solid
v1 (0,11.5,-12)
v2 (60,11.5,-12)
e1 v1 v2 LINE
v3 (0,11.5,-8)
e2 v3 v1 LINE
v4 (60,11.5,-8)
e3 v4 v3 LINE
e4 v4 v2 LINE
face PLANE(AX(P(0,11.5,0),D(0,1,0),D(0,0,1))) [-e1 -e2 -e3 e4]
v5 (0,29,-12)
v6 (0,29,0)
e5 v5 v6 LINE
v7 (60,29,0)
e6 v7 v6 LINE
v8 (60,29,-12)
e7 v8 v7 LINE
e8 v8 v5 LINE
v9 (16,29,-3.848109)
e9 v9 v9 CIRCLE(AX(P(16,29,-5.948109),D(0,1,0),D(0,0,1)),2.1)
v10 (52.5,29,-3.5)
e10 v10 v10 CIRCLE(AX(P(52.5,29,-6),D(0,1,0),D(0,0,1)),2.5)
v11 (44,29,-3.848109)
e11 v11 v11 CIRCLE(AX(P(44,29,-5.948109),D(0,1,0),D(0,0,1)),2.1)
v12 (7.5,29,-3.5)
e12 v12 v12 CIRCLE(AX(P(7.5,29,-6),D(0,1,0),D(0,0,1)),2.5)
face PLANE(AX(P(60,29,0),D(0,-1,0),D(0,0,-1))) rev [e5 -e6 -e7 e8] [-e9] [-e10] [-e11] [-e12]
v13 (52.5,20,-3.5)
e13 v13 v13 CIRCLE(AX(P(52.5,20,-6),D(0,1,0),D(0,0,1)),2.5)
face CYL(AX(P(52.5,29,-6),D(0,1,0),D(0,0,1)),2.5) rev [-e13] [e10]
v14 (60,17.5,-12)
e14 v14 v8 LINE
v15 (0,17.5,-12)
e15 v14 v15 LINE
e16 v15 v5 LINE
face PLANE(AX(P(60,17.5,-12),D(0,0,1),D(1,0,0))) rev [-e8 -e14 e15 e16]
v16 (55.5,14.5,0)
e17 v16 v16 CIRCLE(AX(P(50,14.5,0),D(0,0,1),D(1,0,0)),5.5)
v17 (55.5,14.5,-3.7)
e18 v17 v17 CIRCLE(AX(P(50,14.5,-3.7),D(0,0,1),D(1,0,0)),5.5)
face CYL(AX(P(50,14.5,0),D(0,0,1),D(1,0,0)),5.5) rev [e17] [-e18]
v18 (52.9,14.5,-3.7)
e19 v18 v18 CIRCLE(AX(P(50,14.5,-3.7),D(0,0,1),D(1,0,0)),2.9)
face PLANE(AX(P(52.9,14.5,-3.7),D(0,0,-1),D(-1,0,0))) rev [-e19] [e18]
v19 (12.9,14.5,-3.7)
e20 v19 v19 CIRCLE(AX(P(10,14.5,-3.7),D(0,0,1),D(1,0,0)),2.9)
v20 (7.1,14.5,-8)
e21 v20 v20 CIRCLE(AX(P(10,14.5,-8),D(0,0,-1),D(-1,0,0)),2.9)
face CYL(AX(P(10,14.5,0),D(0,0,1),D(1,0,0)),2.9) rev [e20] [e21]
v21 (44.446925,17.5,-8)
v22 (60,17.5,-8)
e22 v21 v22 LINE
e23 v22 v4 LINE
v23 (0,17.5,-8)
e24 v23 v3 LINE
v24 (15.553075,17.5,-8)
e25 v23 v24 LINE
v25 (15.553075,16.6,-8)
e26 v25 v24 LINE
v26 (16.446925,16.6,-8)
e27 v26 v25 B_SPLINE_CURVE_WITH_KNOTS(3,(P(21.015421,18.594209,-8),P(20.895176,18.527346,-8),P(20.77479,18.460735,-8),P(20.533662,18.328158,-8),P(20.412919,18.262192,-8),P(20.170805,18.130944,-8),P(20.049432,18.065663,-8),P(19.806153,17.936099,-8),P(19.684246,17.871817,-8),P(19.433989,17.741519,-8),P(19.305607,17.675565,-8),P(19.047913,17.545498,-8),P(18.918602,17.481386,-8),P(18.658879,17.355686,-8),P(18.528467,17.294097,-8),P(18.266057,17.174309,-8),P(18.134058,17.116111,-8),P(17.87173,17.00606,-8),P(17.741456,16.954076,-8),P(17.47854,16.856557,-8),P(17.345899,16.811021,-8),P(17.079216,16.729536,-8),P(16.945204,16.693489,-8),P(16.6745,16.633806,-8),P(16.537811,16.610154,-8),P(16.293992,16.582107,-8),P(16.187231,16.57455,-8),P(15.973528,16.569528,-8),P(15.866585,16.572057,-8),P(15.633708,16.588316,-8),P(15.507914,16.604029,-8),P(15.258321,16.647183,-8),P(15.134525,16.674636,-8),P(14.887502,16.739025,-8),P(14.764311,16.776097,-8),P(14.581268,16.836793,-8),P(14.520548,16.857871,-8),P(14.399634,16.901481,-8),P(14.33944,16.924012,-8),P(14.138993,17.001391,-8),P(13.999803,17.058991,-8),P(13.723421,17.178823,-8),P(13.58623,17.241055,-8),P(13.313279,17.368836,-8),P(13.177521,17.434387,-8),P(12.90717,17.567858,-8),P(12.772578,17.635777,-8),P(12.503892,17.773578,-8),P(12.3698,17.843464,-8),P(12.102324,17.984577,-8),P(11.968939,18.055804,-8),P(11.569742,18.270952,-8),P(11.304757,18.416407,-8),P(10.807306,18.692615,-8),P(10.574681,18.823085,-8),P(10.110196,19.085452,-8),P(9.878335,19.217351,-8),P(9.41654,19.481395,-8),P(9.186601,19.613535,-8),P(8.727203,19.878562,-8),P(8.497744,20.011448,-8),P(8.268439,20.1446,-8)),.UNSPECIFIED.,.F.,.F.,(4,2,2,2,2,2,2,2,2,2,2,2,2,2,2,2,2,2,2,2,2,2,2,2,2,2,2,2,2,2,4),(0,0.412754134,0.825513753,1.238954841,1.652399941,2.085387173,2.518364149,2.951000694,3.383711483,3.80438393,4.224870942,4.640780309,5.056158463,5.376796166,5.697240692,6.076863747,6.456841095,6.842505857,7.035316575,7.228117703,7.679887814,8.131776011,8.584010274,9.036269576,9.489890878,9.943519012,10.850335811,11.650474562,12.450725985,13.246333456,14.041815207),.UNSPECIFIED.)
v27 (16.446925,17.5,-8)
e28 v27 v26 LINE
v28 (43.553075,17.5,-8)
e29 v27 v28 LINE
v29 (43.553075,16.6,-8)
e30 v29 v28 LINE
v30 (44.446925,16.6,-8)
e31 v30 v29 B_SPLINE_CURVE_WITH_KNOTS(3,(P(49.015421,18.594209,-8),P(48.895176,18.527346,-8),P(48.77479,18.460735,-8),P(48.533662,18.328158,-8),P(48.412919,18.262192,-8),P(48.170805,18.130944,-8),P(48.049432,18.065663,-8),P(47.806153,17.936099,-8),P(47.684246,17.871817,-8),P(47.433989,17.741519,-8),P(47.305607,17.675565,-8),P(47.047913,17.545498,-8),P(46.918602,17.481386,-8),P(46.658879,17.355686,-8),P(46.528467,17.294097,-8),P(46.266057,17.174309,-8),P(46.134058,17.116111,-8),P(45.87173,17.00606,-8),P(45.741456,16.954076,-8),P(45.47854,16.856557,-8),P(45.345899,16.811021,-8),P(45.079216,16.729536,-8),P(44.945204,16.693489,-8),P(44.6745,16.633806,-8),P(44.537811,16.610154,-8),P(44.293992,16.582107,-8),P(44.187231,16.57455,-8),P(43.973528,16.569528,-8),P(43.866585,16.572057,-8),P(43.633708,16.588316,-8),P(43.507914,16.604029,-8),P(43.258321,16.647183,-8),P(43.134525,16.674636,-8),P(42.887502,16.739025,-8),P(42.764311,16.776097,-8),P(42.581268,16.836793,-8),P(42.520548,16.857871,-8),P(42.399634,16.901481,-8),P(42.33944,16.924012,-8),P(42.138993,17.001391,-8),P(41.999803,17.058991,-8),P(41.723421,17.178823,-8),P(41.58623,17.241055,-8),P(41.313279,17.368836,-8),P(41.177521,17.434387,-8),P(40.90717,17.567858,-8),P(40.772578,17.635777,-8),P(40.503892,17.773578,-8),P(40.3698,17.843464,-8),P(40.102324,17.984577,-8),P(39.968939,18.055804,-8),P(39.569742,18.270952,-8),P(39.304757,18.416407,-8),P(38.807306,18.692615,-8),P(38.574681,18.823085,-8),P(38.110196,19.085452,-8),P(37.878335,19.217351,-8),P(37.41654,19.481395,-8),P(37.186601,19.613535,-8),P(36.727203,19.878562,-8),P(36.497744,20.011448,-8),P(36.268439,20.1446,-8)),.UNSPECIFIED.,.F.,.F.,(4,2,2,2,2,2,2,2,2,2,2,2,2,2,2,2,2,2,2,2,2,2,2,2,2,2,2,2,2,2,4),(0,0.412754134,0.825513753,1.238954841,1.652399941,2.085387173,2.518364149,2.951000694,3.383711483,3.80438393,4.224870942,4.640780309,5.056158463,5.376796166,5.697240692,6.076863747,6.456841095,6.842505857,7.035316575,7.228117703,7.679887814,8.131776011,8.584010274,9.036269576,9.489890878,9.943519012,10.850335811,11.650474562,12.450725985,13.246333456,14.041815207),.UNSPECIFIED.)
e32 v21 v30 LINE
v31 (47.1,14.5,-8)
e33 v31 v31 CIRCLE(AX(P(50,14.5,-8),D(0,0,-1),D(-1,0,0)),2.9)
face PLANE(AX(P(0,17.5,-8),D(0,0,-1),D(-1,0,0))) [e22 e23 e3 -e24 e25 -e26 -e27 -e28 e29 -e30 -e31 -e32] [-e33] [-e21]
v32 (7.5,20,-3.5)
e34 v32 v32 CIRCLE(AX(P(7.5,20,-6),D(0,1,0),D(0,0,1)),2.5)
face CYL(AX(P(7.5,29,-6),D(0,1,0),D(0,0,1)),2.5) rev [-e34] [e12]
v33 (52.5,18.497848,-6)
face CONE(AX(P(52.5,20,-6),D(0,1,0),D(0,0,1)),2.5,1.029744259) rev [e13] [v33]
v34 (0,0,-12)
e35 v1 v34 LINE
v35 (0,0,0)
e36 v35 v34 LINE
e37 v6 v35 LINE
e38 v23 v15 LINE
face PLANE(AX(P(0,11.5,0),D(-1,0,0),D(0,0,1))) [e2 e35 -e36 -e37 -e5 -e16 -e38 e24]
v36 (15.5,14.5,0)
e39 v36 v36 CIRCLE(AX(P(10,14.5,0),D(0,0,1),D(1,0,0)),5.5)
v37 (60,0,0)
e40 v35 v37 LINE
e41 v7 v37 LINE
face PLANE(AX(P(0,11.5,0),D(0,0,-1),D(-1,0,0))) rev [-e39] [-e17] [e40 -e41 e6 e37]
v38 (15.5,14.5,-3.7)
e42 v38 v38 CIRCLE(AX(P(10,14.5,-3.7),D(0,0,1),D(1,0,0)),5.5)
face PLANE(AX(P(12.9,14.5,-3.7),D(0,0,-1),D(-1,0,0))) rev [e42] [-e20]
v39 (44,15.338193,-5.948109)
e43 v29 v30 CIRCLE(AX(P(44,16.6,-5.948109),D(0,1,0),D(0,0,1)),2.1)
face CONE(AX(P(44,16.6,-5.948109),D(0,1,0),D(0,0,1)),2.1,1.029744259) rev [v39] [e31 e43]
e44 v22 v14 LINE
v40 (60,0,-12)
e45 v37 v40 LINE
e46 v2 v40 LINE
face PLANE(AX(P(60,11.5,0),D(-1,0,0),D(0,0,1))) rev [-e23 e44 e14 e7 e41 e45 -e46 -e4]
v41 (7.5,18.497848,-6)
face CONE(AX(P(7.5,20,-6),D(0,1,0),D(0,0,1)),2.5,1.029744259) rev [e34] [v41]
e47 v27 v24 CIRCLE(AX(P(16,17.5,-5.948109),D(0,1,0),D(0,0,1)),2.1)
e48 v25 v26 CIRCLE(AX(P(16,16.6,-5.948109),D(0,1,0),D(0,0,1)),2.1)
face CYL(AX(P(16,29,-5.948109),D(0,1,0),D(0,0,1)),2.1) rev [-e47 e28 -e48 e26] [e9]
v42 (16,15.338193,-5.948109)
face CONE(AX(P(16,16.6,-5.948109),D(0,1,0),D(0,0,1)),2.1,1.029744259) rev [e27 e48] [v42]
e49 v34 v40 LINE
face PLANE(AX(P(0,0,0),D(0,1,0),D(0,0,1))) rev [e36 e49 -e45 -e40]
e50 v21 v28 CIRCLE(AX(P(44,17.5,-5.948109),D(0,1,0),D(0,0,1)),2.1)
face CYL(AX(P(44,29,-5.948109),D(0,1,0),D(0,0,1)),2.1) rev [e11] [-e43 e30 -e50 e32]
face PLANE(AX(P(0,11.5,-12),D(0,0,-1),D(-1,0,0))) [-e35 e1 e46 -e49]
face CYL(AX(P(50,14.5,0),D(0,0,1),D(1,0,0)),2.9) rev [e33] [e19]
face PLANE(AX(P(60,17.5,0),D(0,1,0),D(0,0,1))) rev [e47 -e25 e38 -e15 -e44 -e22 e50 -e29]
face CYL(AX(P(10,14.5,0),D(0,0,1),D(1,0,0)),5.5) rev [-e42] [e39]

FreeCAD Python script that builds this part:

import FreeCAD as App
import Part
import Sketcher


def add_polygon(sketch, points):
    """Adds a closed chain of lines whose ends are joined by coincident constraints."""
    first, n = sketch.GeometryCount, len(points)
    for a, b in zip(points, points[1:] + points[:1]):
        sketch.addGeometry(Part.LineSegment(App.Vector(*a, 0), App.Vector(*b, 0)), False)
    for i in range(n):
        sketch.addConstraint(Sketcher.Constraint("Coincident", first + i, 2, first + (i + 1) % n, 1))

doc = App.newDocument("Part")
body = doc.addObject("PartDesign::Body", "Body")

# Sketch on XZ plane
sketch1 = body.newObject("Sketcher::SketchObject", "Sketch")
sketch1.AttachmentSupport = (doc.getObject("XZ_Plane"), [""])
sketch1.MapMode = "FlatFace"
add_polygon(sketch1, [(0, -12), (0, 0), (60, 0), (60, -12)])  # lines 0-3
sketch1.addConstraint(Sketcher.Constraint("Vertical", 0))
sketch1.addConstraint(Sketcher.Constraint("Horizontal", 1))
sketch1.addConstraint(Sketcher.Constraint("Vertical", 2))
sketch1.addConstraint(Sketcher.Constraint("Horizontal", 3))
sketch1.addConstraint(Sketcher.Constraint("Coincident", 0, 2, -1, 1))
sketch1.addConstraint(Sketcher.Constraint("DistanceX", 1, 1, 1, 2, 60.0))
sketch1.addConstraint(Sketcher.Constraint("DistanceY", 0, 1, 0, 2, 12.0))
pad1 = body.newObject("PartDesign::Pad", "Pad")
pad1.Profile = sketch1
pad1.Length = 11.5
pad1.Reversed = True

# Sketch on XZ plane
sketch2 = body.newObject("Sketcher::SketchObject", "Sketch001")
sketch2.AttachmentSupport = (doc.getObject("XZ_Plane"), [""])
sketch2.MapMode = "FlatFace"
add_polygon(sketch2, [(0, -8), (0, 0), (60, 0), (60, -8)])  # lines 0-3
sketch2.addConstraint(Sketcher.Constraint("Vertical", 0))
sketch2.addConstraint(Sketcher.Constraint("Horizontal", 1))
sketch2.addConstraint(Sketcher.Constraint("Vertical", 2))
sketch2.addConstraint(Sketcher.Constraint("Horizontal", 3))
sketch2.addConstraint(Sketcher.Constraint("Coincident", 0, 2, -1, 1))
sketch2.addConstraint(Sketcher.Constraint("DistanceX", 1, 1, 1, 2, 60.0))
sketch2.addConstraint(Sketcher.Constraint("DistanceY", 0, 1, 0, 2, 8.0))
pad2 = body.newObject("PartDesign::Pad", "Pad001")
pad2.Profile = sketch2
pad2.Length = 17.5
pad2.Reversed = True

# Sketch on YZ plane
sketch3 = body.newObject("Sketcher::SketchObject", "Sketch002")
sketch3.AttachmentSupport = (doc.getObject("YZ_Plane"), [""])
sketch3.MapMode = "FlatFace"
add_polygon(sketch3, [(29, 0), (18, 0), (18, -12), (29, -12)])  # lines 0-3
sketch3.addConstraint(Sketcher.Constraint("Horizontal", 0))
sketch3.addConstraint(Sketcher.Constraint("Vertical", 1))
sketch3.addConstraint(Sketcher.Constraint("Horizontal", 2))
sketch3.addConstraint(Sketcher.Constraint("Vertical", 3))
sketch3.addConstraint(Sketcher.Constraint("PointOnObject", 0, 2, -1))
sketch3.addConstraint(Sketcher.Constraint("DistanceY", 1, 2, 1, 1, 12.0))
sketch3.addConstraint(Sketcher.Constraint("DistanceX", 0, 2, 0, 1, 11.5))
sketch3.addConstraint(Sketcher.Constraint("DistanceX", -1, 1, 2, 2, 29.0))
pad3 = body.newObject("PartDesign::Pad", "Pad002")
pad3.Profile = sketch3
pad3.Length = 60

# Sketch on XY plane
sketch4 = body.newObject("Sketcher::SketchObject", "Sketch003")
sketch4.AttachmentSupport = (doc.getObject("XY_Plane"), [""])
sketch4.MapMode = "FlatFace"
sketch4.addGeometry(Part.Circle(App.Vector(50, 14.5, 0), App.Vector(0, 0, 1), 2.9), False)
sketch4.addGeometry(Part.Circle(App.Vector(10, 14.5, 0), App.Vector(0, 0, 1), 2.9), False)
sketch4.addConstraint(Sketcher.Constraint("Equal", 0, 1))
sketch4.addConstraint(Sketcher.Constraint("Horizontal", 0, 3, 1, 3))
sketch4.addConstraint(Sketcher.Constraint("Diameter", 0, 5.8))
sketch4.addConstraint(Sketcher.Constraint("DistanceX", -1, 1, 0, 3, 50.0))
sketch4.addConstraint(Sketcher.Constraint("DistanceX", -1, 1, 1, 3, 10.0))
sketch4.addConstraint(Sketcher.Constraint("DistanceY", -1, 1, 0, 3, 14.5))
doc.recompute()
hole = body.newObject("PartDesign::Hole", "Hole")
hole.Profile = sketch4
hole.ThreadType = "None"
hole.Diameter = 5.8
hole.DepthType = "Dimension"
hole.Depth = 8.2
hole.DrillPoint = "Angled"
hole.DrillPointAngle = 118
hole.HoleCutType = "Counterbore"
hole.HoleCutDiameter = 11
hole.HoleCutDepth = 3.7

# Sketch on XZ plane
sketch5 = body.newObject("Sketcher::SketchObject", "Sketch004")
sketch5.AttachmentSupport = (doc.getObject("XZ_Plane"), [""])
sketch5.MapMode = "FlatFace"
sketch5.AttachmentOffset = App.Placement(App.Vector(0, 0, -29), App.Rotation())
sketch5.addGeometry(Part.Circle(App.Vector(7.5, -6, 0), App.Vector(0, 0, 1), 2.5), False)
sketch5.addConstraint(Sketcher.Constraint("Diameter", 0, 5.0))
sketch5.addConstraint(Sketcher.Constraint("DistanceY", 0, 3, -1, 1, 6.0))
sketch5.addConstraint(Sketcher.Constraint("DistanceX", -1, 1, 0, 3, 7.5))
doc.recompute()
hole2 = body.newObject("PartDesign::Hole", "Hole001")
hole2.Profile = sketch5
hole2.ThreadType = "None"
hole2.Diameter = 5
hole2.DepthType = "Dimension"
hole2.Depth = 9
hole2.DrillPoint = "Angled"
hole2.DrillPointAngle = 118
hole2.Reversed = True

# Sketch on XZ plane
sketch6 = body.newObject("Sketcher::SketchObject", "Sketch005")
sketch6.AttachmentSupport = (doc.getObject("XZ_Plane"), [""])
sketch6.MapMode = "FlatFace"
sketch6.AttachmentOffset = App.Placement(App.Vector(0, 0, -29), App.Rotation())
sketch6.addGeometry(Part.Circle(App.Vector(52.5, -6, 0), App.Vector(0, 0, 1), 2.5), False)
sketch6.addConstraint(Sketcher.Constraint("Diameter", 0, 5.0))
sketch6.addConstraint(Sketcher.Constraint("DistanceY", 0, 3, -1, 1, 6.0))
sketch6.addConstraint(Sketcher.Constraint("DistanceX", -1, 1, 0, 3, 52.5))
doc.recompute()
hole3 = body.newObject("PartDesign::Hole", "Hole002")
hole3.Profile = sketch6
hole3.ThreadType = "None"
hole3.Diameter = 5
hole3.DepthType = "Dimension"
hole3.Depth = 9
hole3.DrillPoint = "Angled"
hole3.DrillPointAngle = 118
hole3.Reversed = True

# Sketch on XZ plane
sketch7 = body.newObject("Sketcher::SketchObject", "Sketch006")
sketch7.AttachmentSupport = (doc.getObject("XZ_Plane"), [""])
sketch7.MapMode = "FlatFace"
sketch7.AttachmentOffset = App.Placement(App.Vector(0, 0, -29), App.Rotation())
sketch7.addGeometry(Part.Circle(App.Vector(16, -5.9, 0), App.Vector(0, 0, 1), 2.1), False)
sketch7.addConstraint(Sketcher.Constraint("Diameter", 0, 4.2))
sketch7.addConstraint(Sketcher.Constraint("DistanceX", -1, 1, 0, 3, 16.0))
sketch7.addConstraint(Sketcher.Constraint("DistanceY", 0, 3, -1, 1, 5.948109))
doc.recompute()
hole4 = body.newObject("PartDesign::Hole", "Hole003")
hole4.Profile = sketch7
hole4.ThreadType = "None"
hole4.Diameter = 4.2
hole4.DepthType = "Dimension"
hole4.Depth = 12.4
hole4.DrillPoint = "Angled"
hole4.DrillPointAngle = 118
hole4.Reversed = True

# Sketch on XZ plane
sketch8 = body.newObject("Sketcher::SketchObject", "Sketch007")
sketch8.AttachmentSupport = (doc.getObject("XZ_Plane"), [""])
sketch8.MapMode = "FlatFace"
sketch8.AttachmentOffset = App.Placement(App.Vector(0, 0, -29), App.Rotation())
sketch8.addGeometry(Part.Circle(App.Vector(44, -5.9, 0), App.Vector(0, 0, 1), 2.1), False)
sketch8.addConstraint(Sketcher.Constraint("Diameter", 0, 4.2))
sketch8.addConstraint(Sketcher.Constraint("DistanceX", -1, 1, 0, 3, 44.0))
sketch8.addConstraint(Sketcher.Constraint("DistanceY", 0, 3, -1, 1, 5.948109))
doc.recompute()
hole5 = body.newObject("PartDesign::Hole", "Hole004")
hole5.Profile = sketch8
hole5.ThreadType = "None"
hole5.Diameter = 4.2
hole5.DepthType = "Dimension"
hole5.Depth = 12.4
hole5.DrillPoint = "Angled"
hole5.DrillPointAngle = 118
hole5.Reversed = True

doc.recompute()
